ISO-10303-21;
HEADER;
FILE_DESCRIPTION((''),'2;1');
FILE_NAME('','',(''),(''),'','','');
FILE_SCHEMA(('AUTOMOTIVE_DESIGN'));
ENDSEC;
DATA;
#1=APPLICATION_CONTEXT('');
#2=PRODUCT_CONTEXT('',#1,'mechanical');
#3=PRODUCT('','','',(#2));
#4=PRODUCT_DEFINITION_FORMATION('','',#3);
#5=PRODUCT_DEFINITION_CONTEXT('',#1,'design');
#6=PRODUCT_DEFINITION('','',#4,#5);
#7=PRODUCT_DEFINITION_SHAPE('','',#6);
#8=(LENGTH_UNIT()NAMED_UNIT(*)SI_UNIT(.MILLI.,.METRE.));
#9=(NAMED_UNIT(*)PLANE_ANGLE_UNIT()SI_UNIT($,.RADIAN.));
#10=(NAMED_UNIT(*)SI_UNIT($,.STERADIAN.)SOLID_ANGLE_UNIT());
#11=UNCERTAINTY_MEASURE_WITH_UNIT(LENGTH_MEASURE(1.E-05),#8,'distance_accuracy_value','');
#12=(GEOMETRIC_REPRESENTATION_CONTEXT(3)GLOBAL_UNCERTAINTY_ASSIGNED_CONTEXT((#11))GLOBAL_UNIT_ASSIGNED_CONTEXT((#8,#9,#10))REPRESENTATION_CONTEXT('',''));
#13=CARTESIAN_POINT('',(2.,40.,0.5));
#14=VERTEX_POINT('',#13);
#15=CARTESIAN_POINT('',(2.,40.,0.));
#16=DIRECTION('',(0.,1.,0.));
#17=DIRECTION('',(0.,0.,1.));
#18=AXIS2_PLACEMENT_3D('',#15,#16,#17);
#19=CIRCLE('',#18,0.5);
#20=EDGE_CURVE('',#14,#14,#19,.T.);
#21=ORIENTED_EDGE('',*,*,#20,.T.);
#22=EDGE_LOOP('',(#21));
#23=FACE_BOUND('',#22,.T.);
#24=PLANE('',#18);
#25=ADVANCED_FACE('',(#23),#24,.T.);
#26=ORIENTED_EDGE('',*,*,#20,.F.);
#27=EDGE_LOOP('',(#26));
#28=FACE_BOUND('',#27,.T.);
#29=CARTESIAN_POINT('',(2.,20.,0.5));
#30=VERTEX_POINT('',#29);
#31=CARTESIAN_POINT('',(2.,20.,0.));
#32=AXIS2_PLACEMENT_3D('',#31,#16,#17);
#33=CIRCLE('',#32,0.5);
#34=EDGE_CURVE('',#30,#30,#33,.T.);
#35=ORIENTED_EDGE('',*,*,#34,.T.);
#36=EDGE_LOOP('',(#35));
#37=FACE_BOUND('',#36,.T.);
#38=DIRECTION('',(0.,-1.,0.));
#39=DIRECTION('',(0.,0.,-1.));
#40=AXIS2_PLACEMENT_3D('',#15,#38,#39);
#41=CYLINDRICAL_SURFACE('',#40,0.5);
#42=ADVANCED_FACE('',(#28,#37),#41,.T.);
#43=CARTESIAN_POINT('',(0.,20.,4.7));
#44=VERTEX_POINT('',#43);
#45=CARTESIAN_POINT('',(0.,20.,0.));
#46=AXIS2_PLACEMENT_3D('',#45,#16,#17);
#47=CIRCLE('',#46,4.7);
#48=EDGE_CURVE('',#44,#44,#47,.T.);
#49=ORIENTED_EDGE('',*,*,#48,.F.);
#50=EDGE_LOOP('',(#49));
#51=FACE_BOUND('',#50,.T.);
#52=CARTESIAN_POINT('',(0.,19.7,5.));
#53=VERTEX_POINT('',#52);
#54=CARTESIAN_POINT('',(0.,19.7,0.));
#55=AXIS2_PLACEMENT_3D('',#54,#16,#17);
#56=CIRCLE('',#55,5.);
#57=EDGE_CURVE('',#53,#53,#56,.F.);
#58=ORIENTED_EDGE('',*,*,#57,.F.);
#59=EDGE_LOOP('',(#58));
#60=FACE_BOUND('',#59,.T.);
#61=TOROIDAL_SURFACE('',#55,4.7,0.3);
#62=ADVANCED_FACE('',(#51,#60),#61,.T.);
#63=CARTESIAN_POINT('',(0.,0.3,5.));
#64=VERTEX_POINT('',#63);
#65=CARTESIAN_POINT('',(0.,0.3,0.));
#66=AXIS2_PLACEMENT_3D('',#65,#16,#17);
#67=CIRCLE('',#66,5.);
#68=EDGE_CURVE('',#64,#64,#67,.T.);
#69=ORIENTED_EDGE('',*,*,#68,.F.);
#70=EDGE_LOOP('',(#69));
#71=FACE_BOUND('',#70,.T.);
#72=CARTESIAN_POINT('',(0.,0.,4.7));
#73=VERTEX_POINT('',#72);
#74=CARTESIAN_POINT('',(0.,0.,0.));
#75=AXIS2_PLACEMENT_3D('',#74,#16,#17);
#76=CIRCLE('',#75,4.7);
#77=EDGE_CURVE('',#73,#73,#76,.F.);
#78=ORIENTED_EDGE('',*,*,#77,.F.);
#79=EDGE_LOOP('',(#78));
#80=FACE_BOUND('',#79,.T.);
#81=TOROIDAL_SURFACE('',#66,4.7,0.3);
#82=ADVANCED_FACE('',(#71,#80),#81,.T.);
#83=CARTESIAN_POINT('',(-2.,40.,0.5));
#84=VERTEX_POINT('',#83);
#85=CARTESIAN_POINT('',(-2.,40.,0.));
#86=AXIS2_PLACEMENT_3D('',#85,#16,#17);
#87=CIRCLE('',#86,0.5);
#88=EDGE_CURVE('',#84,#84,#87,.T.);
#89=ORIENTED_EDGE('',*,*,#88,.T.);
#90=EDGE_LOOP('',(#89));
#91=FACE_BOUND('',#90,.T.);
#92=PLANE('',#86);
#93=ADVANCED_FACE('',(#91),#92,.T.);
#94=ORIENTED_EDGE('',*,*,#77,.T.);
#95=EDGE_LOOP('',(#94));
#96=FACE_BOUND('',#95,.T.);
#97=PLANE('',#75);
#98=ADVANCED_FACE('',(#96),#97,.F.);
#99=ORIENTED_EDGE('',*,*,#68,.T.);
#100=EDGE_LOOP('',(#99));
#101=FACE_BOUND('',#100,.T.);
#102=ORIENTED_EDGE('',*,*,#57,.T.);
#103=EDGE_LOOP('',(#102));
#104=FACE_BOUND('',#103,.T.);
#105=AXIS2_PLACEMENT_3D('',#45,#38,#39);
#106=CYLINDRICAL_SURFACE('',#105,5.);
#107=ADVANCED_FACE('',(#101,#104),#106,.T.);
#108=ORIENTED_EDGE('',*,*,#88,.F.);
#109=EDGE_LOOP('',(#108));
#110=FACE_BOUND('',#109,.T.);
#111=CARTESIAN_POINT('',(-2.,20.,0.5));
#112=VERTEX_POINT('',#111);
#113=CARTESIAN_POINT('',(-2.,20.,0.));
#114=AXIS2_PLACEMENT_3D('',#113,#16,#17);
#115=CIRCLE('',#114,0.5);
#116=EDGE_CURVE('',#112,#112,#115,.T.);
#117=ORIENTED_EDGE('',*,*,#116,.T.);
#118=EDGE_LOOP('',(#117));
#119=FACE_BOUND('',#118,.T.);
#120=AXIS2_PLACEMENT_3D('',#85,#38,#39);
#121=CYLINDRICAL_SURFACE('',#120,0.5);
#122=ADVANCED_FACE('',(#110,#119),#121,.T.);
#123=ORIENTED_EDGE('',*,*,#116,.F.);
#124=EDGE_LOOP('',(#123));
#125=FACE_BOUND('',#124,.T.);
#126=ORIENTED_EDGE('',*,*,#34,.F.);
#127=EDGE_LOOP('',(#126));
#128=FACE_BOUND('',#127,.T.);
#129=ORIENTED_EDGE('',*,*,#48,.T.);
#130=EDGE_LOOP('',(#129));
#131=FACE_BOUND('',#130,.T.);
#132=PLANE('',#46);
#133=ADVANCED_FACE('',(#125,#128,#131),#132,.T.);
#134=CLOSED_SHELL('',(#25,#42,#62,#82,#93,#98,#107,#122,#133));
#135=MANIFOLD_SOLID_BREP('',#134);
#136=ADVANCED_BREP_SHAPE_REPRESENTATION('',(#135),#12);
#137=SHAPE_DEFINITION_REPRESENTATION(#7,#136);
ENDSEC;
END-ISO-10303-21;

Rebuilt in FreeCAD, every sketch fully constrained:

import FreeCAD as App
import Part
import Sketcher
from FreeCAD import Vector
Q = App.Units.Quantity


def edges_at(feature, points):
    """Names of the edges that pass closest to the given points."""
    edges = feature.Shape.Edges
    near = lambda p: min(range(len(edges)), key=lambda i: edges[i].distToShape(Part.Vertex(*p))[0])
    return sorted({f"Edge{near(p) + 1}" for p in points})

doc = App.newDocument("Part")
body = doc.addObject("PartDesign::Body", "Body")

# Sketch on XZ plane
sketch1 = body.newObject("Sketcher::SketchObject", "Sketch")
sketch1.AttachmentSupport = (doc.getObject("XZ_Plane"), [""])
sketch1.MapMode = "FlatFace"
sketch1.addGeometry(Part.Circle(Vector(0, 0, 0), Vector(0, 0, 1), 5), False)
sketch1.addConstraint([
    Sketcher.Constraint("Coincident", 0, 3, -1, 1),
    Sketcher.Constraint("Diameter", 0, Q("10 mm")),
])
pad1 = body.newObject("PartDesign::Pad", "Pad")
pad1.Profile = sketch1
pad1.Length = 20
pad1.Reversed = True

# Sketch on XZ plane
sketch2 = body.newObject("Sketcher::SketchObject", "Sketch001")
sketch2.AttachmentSupport = (doc.getObject("XZ_Plane"), [""])
sketch2.MapMode = "FlatFace"
sketch2.AttachmentOffset = App.Placement(Vector(0, 0, -20), App.Rotation())
sketch2.addGeometry([
    Part.Circle(Vector(-2, 0, 0), Vector(0, 0, 1), 0.5),
    Part.Circle(Vector(2, 0, 0), Vector(0, 0, 1), 0.5),
], False)
sketch2.addConstraint([
    Sketcher.Constraint("Equal", 0, 1),
    Sketcher.Constraint("Symmetric", 0, 3, 1, 3, -1, 1),
    Sketcher.Constraint("PointOnObject", 0, 3, -1),
    Sketcher.Constraint("Diameter", 0, Q("1 mm")),
    Sketcher.Constraint("DistanceX", 0, 3, -1, 1, Q("2 mm")),
])
pad2 = body.newObject("PartDesign::Pad", "Pad001")
pad2.Profile = sketch2
pad2.Length = 20
pad2.Reversed = True
doc.recompute()

fillet = body.newObject("PartDesign::Fillet", "Fillet")
fillet.Base = (pad2, edges_at(pad2, [(-5, 0, 0), (-5, 20, 0)]))
fillet.Radius = 0.3

doc.recompute()
